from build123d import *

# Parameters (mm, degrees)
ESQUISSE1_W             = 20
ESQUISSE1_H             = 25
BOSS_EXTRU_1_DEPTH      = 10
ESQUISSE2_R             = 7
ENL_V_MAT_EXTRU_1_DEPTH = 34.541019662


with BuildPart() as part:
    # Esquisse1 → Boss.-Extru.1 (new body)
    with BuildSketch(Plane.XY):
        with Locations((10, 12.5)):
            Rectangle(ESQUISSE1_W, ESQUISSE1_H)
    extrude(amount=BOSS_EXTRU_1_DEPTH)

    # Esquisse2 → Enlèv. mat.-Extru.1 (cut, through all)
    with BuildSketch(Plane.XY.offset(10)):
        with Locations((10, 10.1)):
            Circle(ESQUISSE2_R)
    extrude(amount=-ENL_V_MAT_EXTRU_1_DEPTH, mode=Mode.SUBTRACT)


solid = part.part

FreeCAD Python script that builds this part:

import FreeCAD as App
import Part
import Sketcher
from FreeCAD import Vector
Q = App.Units.Quantity

doc = App.newDocument("Part")
params = doc.addObject("Spreadsheet::Sheet", "Params")
for row, (alias, value) in enumerate([
    ("sketch1_width", "20 mm"),
    ("sketch1_height", "25 mm"),
    ("pad1_length", "10 mm"),
    ("sketch2_diameter", "14 mm"),
], start=1):
    params.set(f"A{row}", alias)
    params.set(f"B{row}", "=" + value)
    params.setAlias(f"B{row}", alias)

body = doc.addObject("PartDesign::Body", "Body")

# Sketch on XY plane
sketch1 = doc.addObject("Sketcher::SketchObject", "Sketch")
body.addObject(sketch1)
sketch1.AttachmentSupport = (doc.XY_Plane, [""])
sketch1.MapMode = "FlatFace"
sketch1.addGeometry([
    Part.LineSegment(Vector(0, 25, 0), Vector(0, 0, 0)),
    Part.LineSegment(Vector(0, 0, 0), Vector(20, 0, 0)),
    Part.LineSegment(Vector(20, 0, 0), Vector(20, 25, 0)),
    Part.LineSegment(Vector(20, 25, 0), Vector(0, 25, 0)),
], False)
sketch1.addConstraint([
    Sketcher.Constraint("Coincident", 0, 2, 1, 1),
    Sketcher.Constraint("Coincident", 1, 2, 2, 1),
    Sketcher.Constraint("Coincident", 2, 2, 3, 1),
    Sketcher.Constraint("Coincident", 3, 2, 0, 1),
    Sketcher.Constraint("Vertical", 0),
    Sketcher.Constraint("Horizontal", 1),
    Sketcher.Constraint("Vertical", 2),
    Sketcher.Constraint("Horizontal", 3),
    Sketcher.Constraint("Coincident", 0, 2, -1, 1),
    Sketcher.Constraint("DistanceX", 1, 1, 1, 2, Q("20 mm")),
    Sketcher.Constraint("DistanceY", 0, 2, 0, 1, Q("25 mm")),
])
sketch1.setExpression("Constraints[9]", "Params.sketch1_width")
sketch1.setExpression("Constraints[10]", "Params.sketch1_height")
pad1 = doc.addObject("PartDesign::Pad", "Pad")
body.addObject(pad1)
pad1.Profile = sketch1
pad1.setExpression("Length", "Params.pad1_length")

# Sketch on XY plane
sketch2 = doc.addObject("Sketcher::SketchObject", "Sketch001")
body.addObject(sketch2)
sketch2.AttachmentSupport = (doc.XY_Plane, [""])
sketch2.MapMode = "FlatFace"
sketch2.AttachmentOffset = App.Placement(Vector(0, 0, 10), App.Rotation())
sketch2.addGeometry(Part.Circle(Vector(10, 10, 0), Vector(0, 0, 1), 7), False)
sketch2.addConstraint([
    Sketcher.Constraint("Diameter", 0, Q("14 mm")),
    Sketcher.Constraint("DistanceX", -1, 1, 0, 3, Q("10 mm")),
    Sketcher.Constraint("DistanceY", -1, 1, 0, 3, Q("10.1 mm")),
])
sketch2.setExpression("Constraints[0]", "Params.sketch2_diameter")
pocket1 = doc.addObject("PartDesign::Pocket", "Pocket")
body.addObject(pocket1)
pocket1.Profile = sketch2
pocket1.Type = "ThroughAll"

doc.recompute()
